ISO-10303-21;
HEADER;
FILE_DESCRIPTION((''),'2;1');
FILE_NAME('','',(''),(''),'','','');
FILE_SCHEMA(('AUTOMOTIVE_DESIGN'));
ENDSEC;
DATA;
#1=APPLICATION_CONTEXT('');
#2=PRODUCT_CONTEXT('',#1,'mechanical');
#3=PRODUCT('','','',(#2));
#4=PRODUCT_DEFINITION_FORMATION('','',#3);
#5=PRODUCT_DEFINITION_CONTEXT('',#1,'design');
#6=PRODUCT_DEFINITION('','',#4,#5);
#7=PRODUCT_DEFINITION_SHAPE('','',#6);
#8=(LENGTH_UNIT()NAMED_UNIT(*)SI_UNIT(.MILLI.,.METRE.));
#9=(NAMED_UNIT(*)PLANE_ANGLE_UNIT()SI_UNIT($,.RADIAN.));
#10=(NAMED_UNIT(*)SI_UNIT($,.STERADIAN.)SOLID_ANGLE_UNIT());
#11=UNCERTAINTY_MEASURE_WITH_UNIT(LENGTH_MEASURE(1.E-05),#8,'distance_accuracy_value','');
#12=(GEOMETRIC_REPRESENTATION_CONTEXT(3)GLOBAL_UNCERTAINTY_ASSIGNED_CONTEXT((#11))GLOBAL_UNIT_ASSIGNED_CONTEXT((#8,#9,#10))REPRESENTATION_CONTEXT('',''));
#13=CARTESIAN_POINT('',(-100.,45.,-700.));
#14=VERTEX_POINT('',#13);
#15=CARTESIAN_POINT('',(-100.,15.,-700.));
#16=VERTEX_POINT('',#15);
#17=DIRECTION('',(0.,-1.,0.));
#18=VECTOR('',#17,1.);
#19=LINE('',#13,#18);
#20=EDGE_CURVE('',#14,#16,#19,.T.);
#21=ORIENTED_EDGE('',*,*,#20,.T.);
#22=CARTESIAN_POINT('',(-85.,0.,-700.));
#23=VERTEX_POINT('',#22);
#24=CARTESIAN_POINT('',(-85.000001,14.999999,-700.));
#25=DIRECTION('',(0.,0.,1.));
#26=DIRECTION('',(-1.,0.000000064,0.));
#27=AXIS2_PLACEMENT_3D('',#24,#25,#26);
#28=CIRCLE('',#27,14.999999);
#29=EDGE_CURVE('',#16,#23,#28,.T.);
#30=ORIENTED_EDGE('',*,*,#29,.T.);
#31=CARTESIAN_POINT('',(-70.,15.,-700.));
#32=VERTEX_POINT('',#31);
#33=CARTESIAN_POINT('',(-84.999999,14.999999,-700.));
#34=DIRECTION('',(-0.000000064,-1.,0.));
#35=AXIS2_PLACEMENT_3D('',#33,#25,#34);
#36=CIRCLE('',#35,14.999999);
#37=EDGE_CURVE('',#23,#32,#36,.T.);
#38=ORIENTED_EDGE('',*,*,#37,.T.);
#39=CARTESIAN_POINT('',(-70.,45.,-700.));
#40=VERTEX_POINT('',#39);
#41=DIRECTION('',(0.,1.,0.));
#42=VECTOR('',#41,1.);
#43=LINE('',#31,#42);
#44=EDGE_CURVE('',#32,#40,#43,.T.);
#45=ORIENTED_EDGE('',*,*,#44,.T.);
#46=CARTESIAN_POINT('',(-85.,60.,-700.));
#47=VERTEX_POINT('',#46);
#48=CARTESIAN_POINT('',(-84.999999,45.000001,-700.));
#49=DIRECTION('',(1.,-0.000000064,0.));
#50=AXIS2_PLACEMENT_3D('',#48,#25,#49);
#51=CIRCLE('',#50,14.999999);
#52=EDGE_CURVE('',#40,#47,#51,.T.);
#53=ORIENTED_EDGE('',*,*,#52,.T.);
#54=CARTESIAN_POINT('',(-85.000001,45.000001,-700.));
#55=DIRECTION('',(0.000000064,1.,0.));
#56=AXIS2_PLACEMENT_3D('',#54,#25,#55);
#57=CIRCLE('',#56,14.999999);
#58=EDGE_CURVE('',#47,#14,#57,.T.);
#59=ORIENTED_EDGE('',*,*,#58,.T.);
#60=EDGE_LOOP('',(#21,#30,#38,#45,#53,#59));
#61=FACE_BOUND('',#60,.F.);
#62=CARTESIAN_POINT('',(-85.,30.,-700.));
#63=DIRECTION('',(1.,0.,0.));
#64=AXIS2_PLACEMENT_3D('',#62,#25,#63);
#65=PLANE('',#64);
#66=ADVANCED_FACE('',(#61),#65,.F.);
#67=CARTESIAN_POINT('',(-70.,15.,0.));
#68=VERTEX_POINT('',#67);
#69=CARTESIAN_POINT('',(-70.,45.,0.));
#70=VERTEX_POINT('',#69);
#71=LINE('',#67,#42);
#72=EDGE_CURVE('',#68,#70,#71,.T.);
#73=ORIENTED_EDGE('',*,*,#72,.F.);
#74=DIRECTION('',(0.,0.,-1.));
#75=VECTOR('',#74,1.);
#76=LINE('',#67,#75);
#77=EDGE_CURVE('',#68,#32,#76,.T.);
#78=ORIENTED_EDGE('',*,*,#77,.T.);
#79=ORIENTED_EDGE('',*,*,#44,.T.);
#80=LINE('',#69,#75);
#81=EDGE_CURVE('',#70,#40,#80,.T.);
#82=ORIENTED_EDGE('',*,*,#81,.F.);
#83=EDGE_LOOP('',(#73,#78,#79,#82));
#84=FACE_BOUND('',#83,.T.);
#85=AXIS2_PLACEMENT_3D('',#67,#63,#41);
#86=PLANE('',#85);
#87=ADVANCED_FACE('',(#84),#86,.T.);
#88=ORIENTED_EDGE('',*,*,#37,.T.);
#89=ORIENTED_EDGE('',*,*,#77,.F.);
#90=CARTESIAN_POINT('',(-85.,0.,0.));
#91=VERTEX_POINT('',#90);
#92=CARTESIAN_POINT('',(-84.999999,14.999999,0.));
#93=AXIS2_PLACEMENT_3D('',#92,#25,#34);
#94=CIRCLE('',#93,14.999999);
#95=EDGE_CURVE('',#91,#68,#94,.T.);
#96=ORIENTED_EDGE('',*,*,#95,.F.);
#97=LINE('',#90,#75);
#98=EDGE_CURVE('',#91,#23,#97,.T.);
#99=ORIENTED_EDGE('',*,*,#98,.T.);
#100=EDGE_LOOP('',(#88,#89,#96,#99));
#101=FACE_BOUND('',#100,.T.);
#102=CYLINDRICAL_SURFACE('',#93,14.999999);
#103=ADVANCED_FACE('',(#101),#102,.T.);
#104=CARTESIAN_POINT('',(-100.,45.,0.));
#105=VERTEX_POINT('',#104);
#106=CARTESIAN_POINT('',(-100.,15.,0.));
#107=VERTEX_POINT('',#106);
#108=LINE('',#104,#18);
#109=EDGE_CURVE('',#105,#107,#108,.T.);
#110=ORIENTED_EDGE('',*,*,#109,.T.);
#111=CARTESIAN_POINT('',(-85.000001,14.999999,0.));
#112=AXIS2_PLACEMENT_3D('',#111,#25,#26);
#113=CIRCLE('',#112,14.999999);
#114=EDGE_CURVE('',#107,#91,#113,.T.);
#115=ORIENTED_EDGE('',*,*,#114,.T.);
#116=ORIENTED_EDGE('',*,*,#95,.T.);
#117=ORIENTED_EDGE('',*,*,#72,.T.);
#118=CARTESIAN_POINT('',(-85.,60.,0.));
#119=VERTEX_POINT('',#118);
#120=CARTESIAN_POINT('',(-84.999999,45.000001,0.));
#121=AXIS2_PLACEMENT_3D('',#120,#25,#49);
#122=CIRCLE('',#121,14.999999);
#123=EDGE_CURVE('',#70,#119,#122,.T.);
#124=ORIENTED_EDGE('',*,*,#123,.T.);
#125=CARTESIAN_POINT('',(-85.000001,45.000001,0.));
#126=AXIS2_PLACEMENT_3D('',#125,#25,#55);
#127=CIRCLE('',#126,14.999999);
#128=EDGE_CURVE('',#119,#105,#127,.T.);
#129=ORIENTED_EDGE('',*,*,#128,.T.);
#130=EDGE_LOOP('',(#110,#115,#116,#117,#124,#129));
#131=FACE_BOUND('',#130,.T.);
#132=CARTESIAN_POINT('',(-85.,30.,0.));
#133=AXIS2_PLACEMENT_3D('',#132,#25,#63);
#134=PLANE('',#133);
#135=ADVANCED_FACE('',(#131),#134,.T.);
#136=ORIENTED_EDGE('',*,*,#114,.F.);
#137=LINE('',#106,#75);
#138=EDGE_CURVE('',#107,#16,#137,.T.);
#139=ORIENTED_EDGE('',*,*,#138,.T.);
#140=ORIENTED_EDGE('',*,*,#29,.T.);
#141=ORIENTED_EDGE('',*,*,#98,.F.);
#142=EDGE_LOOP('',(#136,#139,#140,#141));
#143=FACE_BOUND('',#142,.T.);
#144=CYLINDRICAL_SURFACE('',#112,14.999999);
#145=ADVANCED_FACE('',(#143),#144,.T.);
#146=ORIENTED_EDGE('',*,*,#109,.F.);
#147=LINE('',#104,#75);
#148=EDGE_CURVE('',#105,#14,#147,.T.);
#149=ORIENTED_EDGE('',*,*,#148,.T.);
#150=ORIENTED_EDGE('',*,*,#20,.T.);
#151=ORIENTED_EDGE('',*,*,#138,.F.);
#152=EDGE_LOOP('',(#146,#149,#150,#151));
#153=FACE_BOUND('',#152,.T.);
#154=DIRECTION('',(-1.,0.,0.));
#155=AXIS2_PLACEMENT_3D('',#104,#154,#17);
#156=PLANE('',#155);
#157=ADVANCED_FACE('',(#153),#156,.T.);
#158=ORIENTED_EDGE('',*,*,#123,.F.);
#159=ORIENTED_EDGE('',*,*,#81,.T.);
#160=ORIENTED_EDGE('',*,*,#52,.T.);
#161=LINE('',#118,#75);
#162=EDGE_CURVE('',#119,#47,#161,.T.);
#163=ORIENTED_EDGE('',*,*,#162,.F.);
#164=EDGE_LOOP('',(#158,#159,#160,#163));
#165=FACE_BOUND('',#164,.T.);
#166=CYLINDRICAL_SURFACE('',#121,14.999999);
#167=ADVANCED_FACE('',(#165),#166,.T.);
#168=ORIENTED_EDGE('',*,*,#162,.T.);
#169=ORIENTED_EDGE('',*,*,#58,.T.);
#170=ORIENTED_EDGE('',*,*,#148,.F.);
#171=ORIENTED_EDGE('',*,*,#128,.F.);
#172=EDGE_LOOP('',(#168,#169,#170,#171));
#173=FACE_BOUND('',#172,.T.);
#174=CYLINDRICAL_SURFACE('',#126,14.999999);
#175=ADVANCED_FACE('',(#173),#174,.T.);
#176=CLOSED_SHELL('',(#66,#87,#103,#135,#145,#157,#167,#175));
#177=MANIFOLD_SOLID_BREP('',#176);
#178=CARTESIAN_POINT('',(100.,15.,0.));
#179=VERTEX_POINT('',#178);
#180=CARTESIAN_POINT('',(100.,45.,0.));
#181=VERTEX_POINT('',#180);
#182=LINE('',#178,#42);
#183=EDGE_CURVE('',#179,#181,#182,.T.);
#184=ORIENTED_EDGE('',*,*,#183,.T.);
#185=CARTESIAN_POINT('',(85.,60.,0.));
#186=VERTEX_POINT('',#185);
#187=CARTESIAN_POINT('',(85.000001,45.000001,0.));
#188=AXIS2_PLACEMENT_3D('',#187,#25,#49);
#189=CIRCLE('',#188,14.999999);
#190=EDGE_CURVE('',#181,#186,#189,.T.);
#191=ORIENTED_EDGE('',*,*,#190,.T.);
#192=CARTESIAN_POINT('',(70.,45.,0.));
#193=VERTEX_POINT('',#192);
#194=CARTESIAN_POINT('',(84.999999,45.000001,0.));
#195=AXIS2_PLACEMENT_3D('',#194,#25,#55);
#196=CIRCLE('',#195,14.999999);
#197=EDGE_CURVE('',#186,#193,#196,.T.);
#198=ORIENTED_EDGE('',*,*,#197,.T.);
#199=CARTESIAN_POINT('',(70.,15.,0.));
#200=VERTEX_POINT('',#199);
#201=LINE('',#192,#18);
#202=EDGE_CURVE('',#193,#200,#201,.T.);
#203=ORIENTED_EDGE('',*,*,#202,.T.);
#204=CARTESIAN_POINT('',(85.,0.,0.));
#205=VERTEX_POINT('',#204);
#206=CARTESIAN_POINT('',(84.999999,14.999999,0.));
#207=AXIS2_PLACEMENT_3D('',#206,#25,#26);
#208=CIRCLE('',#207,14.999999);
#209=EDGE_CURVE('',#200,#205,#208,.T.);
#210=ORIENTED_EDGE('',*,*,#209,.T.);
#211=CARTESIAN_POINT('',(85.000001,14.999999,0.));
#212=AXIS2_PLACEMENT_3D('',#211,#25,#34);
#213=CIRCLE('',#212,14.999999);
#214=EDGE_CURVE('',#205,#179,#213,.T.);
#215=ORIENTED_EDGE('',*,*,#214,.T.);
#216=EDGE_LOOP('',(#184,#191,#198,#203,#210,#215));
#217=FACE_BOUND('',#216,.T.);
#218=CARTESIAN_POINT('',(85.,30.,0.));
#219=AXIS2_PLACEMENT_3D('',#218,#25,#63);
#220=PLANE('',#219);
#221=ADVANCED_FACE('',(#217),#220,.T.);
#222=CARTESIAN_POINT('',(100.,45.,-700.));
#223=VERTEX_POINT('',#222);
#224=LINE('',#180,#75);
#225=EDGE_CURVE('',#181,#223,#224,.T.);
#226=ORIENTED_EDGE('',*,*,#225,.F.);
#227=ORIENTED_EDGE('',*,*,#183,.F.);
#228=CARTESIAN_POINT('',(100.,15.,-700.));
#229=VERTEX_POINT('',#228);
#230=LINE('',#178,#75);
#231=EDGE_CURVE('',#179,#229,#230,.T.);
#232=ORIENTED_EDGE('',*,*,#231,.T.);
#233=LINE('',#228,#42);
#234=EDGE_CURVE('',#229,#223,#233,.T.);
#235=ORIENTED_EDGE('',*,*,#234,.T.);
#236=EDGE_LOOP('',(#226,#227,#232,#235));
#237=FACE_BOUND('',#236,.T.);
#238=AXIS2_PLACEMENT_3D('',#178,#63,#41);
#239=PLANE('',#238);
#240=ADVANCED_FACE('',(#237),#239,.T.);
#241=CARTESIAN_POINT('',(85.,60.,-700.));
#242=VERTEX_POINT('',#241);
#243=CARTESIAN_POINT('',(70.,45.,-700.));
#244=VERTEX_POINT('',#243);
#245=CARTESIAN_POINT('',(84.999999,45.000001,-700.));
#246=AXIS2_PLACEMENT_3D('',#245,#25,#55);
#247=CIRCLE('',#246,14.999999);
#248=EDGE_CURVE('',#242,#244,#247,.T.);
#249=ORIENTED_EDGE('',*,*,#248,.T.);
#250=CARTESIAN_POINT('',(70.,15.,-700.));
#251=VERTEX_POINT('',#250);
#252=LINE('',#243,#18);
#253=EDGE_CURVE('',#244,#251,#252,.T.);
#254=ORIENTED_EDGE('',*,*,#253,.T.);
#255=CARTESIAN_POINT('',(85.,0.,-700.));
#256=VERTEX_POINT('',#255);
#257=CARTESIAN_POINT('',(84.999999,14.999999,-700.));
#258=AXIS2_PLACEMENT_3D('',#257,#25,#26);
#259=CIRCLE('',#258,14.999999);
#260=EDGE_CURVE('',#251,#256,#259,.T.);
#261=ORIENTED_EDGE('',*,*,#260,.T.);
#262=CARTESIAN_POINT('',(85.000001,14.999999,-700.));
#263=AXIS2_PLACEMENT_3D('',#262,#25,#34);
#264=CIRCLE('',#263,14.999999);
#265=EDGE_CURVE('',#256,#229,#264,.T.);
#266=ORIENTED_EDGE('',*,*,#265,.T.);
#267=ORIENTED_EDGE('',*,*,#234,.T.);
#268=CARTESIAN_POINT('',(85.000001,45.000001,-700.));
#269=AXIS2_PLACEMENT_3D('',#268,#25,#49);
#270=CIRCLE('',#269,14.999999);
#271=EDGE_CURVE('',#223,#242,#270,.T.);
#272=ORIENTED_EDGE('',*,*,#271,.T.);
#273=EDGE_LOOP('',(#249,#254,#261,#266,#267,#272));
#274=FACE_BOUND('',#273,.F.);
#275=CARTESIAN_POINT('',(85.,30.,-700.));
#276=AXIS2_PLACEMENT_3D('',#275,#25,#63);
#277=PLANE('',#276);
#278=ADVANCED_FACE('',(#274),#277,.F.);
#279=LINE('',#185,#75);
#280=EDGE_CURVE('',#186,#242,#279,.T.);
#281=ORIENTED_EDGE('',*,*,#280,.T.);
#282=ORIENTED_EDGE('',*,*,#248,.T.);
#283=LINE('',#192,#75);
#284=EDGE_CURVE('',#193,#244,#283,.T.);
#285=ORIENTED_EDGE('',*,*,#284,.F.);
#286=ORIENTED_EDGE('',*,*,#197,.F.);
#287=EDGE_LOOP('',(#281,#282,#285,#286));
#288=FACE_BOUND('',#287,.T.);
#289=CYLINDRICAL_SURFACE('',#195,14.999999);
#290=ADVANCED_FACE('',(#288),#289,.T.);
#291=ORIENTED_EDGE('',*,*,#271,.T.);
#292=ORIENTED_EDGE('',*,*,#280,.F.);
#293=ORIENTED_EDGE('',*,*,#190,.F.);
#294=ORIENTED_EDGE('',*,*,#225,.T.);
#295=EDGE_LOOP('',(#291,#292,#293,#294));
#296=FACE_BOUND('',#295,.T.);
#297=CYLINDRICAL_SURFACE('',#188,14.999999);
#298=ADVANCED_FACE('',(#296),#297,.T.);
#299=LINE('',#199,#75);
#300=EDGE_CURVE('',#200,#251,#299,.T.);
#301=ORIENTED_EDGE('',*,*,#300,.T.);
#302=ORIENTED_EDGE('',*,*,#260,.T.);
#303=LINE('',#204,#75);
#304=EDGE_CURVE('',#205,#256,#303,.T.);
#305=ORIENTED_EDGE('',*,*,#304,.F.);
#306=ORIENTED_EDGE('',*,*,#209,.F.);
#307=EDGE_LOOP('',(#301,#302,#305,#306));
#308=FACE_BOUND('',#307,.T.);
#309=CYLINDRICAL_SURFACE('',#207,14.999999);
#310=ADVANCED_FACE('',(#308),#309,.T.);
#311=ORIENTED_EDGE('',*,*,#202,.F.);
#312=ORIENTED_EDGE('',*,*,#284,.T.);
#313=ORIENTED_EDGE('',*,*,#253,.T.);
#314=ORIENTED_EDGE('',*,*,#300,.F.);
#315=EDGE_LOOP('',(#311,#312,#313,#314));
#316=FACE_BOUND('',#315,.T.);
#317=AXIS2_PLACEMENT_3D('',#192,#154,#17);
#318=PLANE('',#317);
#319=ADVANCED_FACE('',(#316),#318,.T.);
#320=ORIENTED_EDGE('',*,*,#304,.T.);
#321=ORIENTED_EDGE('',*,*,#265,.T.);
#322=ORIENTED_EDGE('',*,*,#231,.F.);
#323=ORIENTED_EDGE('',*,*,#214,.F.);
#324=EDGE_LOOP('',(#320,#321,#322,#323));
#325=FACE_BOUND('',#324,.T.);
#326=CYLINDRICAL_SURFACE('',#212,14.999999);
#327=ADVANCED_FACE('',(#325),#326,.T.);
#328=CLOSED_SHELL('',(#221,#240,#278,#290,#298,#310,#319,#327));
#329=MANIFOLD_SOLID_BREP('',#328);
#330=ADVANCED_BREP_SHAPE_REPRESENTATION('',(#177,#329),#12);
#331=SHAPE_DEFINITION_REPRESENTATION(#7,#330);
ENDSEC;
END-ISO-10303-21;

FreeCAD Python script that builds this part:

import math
import FreeCAD as App
import Part
import Sketcher

V = App.Vector

doc = App.newDocument("Part")
body = doc.addObject("PartDesign::Body", "Body")
body.AllowCompound = True

# Sketch on XY plane
sketch1 = body.newObject("Sketcher::SketchObject", "Sketch")
sketch1.AttachmentSupport = (doc.getObject("XY_Plane"), [""])
sketch1.MapMode = "FlatFace"
sketch1.addGeometry(Part.LineSegment(V(-100, 45, 0), V(-100, 15, 0)), False)
sketch1.addGeometry(Part.ArcOfCircle(Part.Circle(V(-85, 15, 0), V(0, 0, 1), 15), math.radians(180), math.radians(270)), False)
sketch1.addGeometry(Part.ArcOfCircle(Part.Circle(V(-85, 15, 0), V(0, 0, 1), 15), math.radians(-90), math.radians(0)), False)
sketch1.addGeometry(Part.LineSegment(V(-70, 15, 0), V(-70, 45, 0)), False)
sketch1.addGeometry(Part.ArcOfCircle(Part.Circle(V(-85, 45, 0), V(0, 0, 1), 15), math.radians(0), math.radians(90)), False)
sketch1.addGeometry(Part.ArcOfCircle(Part.Circle(V(-85, 45, 0), V(0, 0, 1), 15), math.radians(90), math.radians(180)), False)
sketch1.addGeometry(Part.LineSegment(V(70, 45, 0), V(70, 15, 0)), False)
sketch1.addGeometry(Part.ArcOfCircle(Part.Circle(V(85, 15, 0), V(0, 0, 1), 15), math.radians(180), math.radians(270)), False)
sketch1.addGeometry(Part.ArcOfCircle(Part.Circle(V(85, 15, 0), V(0, 0, 1), 15), math.radians(-90), math.radians(0)), False)
sketch1.addGeometry(Part.LineSegment(V(100, 15, 0), V(100, 45, 0)), False)
sketch1.addGeometry(Part.ArcOfCircle(Part.Circle(V(85, 45, 0), V(0, 0, 1), 15), math.radians(0), math.radians(90)), False)
sketch1.addGeometry(Part.ArcOfCircle(Part.Circle(V(85, 45, 0), V(0, 0, 1), 15), math.radians(90), math.radians(180)), False)
sketch1.addConstraint(Sketcher.Constraint("Tangent", 0, 2, 1, 1))
sketch1.addConstraint(Sketcher.Constraint("Tangent", 1, 2, 2, 1))
sketch1.addConstraint(Sketcher.Constraint("Tangent", 2, 2, 3, 1))
sketch1.addConstraint(Sketcher.Constraint("Tangent", 3, 2, 4, 1))
sketch1.addConstraint(Sketcher.Constraint("Tangent", 4, 2, 5, 1))
sketch1.addConstraint(Sketcher.Constraint("Tangent", 5, 2, 0, 1))
sketch1.addConstraint(Sketcher.Constraint("Tangent", 6, 2, 7, 1))
sketch1.addConstraint(Sketcher.Constraint("Tangent", 7, 2, 8, 1))
sketch1.addConstraint(Sketcher.Constraint("Tangent", 8, 2, 9, 1))
sketch1.addConstraint(Sketcher.Constraint("Tangent", 9, 2, 10, 1))
sketch1.addConstraint(Sketcher.Constraint("Tangent", 10, 2, 11, 1))
sketch1.addConstraint(Sketcher.Constraint("Tangent", 11, 2, 6, 1))
sketch1.addConstraint(Sketcher.Constraint("Vertical", 0))
sketch1.addConstraint(Sketcher.Constraint("Vertical", 3))
sketch1.addConstraint(Sketcher.Constraint("Vertical", 6))
sketch1.addConstraint(Sketcher.Constraint("Vertical", 9))
sketch1.addConstraint(Sketcher.Constraint("Equal", 1, 2))
sketch1.addConstraint(Sketcher.Constraint("Equal", 2, 4))
sketch1.addConstraint(Sketcher.Constraint("Equal", 5, 7))
sketch1.addConstraint(Sketcher.Constraint("Equal", 7, 8))
sketch1.addConstraint(Sketcher.Constraint("Equal", 8, 10))
sketch1.addConstraint(Sketcher.Constraint("Symmetric", 1, 2, 7, 2, -1, 1))
sketch1.addConstraint(Sketcher.Constraint("Symmetric", 1, 3, 7, 3, -2))
sketch1.addConstraint(Sketcher.Constraint("Symmetric", 4, 2, 10, 2, -2))
sketch1.addConstraint(Sketcher.Constraint("Vertical", 5, 3, 1, 2))
sketch1.addConstraint(Sketcher.Constraint("Vertical", 1, 2, 4, 2))
sketch1.addConstraint(Sketcher.Constraint("Radius", 1, 14.999999))
sketch1.addConstraint(Sketcher.Constraint("DistanceY", 0, 2, 0, 1, 30.0))
sketch1.addConstraint(Sketcher.Constraint("DistanceX", 1, 3, -1, 1, 85.000001))
pad1 = body.newObject("PartDesign::Pad", "Pad")
pad1.Profile = sketch1
pad1.Length = 700
pad1.Reversed = True

doc.recompute()
